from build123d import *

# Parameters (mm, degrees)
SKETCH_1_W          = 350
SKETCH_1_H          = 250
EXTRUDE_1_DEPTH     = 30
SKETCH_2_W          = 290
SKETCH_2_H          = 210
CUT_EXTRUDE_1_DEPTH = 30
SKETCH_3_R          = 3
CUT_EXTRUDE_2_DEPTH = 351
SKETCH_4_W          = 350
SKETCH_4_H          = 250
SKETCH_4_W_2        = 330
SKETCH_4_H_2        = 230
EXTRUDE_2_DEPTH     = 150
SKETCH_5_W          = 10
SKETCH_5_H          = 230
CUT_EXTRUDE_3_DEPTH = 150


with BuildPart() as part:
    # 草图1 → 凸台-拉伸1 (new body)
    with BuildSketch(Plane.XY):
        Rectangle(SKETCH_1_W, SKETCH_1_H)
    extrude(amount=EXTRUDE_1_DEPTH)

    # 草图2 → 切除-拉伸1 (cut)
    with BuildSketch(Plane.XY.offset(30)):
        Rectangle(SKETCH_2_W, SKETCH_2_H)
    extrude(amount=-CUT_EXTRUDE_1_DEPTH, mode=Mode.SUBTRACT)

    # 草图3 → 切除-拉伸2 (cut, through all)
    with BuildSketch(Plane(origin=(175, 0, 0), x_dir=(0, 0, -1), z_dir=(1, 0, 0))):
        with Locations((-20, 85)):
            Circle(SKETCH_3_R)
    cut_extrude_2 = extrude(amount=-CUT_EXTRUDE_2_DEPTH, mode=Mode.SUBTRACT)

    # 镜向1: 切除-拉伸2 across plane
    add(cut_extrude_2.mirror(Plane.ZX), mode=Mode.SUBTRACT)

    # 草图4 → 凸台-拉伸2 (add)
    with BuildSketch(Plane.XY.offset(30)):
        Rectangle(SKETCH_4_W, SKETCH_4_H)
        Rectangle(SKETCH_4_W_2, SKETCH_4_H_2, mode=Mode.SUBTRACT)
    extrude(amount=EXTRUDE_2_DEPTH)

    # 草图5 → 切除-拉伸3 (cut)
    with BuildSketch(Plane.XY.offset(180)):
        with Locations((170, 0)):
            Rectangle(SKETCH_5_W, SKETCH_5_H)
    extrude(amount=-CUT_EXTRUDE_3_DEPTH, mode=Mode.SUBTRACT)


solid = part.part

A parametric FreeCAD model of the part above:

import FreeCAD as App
import Part
import Sketcher
Q = App.Units.Quantity


def add_polygon(sketch, points):
    """Adds a closed chain of lines whose ends are joined by coincident constraints."""
    first, n = sketch.GeometryCount, len(points)
    for a, b in zip(points, points[1:] + points[:1]):
        sketch.addGeometry(Part.LineSegment(App.Vector(*a, 0), App.Vector(*b, 0)), False)
    for i in range(n):
        sketch.addConstraint(Sketcher.Constraint("Coincident", first + i, 2, first + (i + 1) % n, 1))

doc = App.newDocument("Part")
body = doc.addObject("PartDesign::Body", "Body")

# Sketch on XY plane
sketch1 = doc.addObject("Sketcher::SketchObject", "Sketch")
body.addObject(sketch1)
sketch1.AttachmentSupport = (doc.XY_Plane, [""])
sketch1.MapMode = "FlatFace"
add_polygon(sketch1, [(-175, 125), (-175, -125), (175, -125), (175, 125)])  # lines 0-3
sketch1.addConstraint([
    Sketcher.Constraint("Vertical", 0),
    Sketcher.Constraint("Horizontal", 1),
    Sketcher.Constraint("Vertical", 2),
    Sketcher.Constraint("Horizontal", 3),
    Sketcher.Constraint("Symmetric", 0, 2, 2, 2, -1, 1),
    Sketcher.Constraint("DistanceX", 1, 1, 1, 2, Q("350 mm")),
    Sketcher.Constraint("DistanceY", 0, 2, 0, 1, Q("250 mm")),
])
pad1 = doc.addObject("PartDesign::Pad", "Pad")
body.addObject(pad1)
pad1.Profile = sketch1
pad1.Length = 30

# Sketch on XY plane
sketch2 = doc.addObject("Sketcher::SketchObject", "Sketch001")
body.addObject(sketch2)
sketch2.AttachmentSupport = (doc.XY_Plane, [""])
sketch2.MapMode = "FlatFace"
sketch2.AttachmentOffset = App.Placement(App.Vector(0, 0, 30), App.Rotation())
add_polygon(sketch2, [(-145, 105), (-145, -105), (145, -105), (145, 105)])  # lines 0-3
sketch2.addConstraint([
    Sketcher.Constraint("Vertical", 0),
    Sketcher.Constraint("Horizontal", 1),
    Sketcher.Constraint("Vertical", 2),
    Sketcher.Constraint("Horizontal", 3),
    Sketcher.Constraint("Symmetric", 0, 2, 2, 2, -1, 1),
    Sketcher.Constraint("DistanceX", 1, 1, 1, 2, Q("290 mm")),
    Sketcher.Constraint("DistanceY", 0, 2, 0, 1, Q("210 mm")),
])
pocket1 = doc.addObject("PartDesign::Pocket", "Pocket")
body.addObject(pocket1)
pocket1.Profile = sketch2
pocket1.Length = 30

# Sketch on YZ plane
sketch3 = doc.addObject("Sketcher::SketchObject", "Sketch002")
body.addObject(sketch3)
sketch3.AttachmentSupport = (doc.YZ_Plane, [""])
sketch3.MapMode = "FlatFace"
sketch3.AttachmentOffset = App.Placement(App.Vector(0, 0, 175), App.Rotation())
sketch3.addGeometry(Part.Circle(App.Vector(85, 20, 0), App.Vector(0, 0, 1), 3), False)
sketch3.addConstraint([
    Sketcher.Constraint("Diameter", 0, Q("6 mm")),
    Sketcher.Constraint("DistanceX", -1, 1, 0, 3, Q("85 mm")),
    Sketcher.Constraint("DistanceY", -1, 1, 0, 3, Q("20 mm")),
])
pocket2 = doc.addObject("PartDesign::Pocket", "Pocket001")
body.addObject(pocket2)
pocket2.Profile = sketch3
pocket2.Type = "ThroughAll"
doc.recompute()

mirrored = doc.addObject("PartDesign::Mirrored", "Mirrored")
body.addObject(mirrored)
mirrored.Originals = [pocket2]
mirrored.MirrorPlane = (doc.XZ_Plane, [""])
body.Tip = mirrored

# Sketch on XY plane
sketch4 = doc.addObject("Sketcher::SketchObject", "Sketch003")
body.addObject(sketch4)
sketch4.AttachmentSupport = (doc.XY_Plane, [""])
sketch4.MapMode = "FlatFace"
sketch4.AttachmentOffset = App.Placement(App.Vector(0, 0, 30), App.Rotation())
add_polygon(sketch4, [(-175, 125), (-175, -125), (175, -125), (175, 125)])  # lines 0-3
add_polygon(sketch4, [(165, -115), (-165, -115), (-165, 115), (165, 115)])  # lines 4-7
sketch4.addConstraint([
    Sketcher.Constraint("Vertical", 0),
    Sketcher.Constraint("Horizontal", 1),
    Sketcher.Constraint("Vertical", 2),
    Sketcher.Constraint("Horizontal", 3),
    Sketcher.Constraint("Horizontal", 4),
    Sketcher.Constraint("Vertical", 5),
    Sketcher.Constraint("Horizontal", 6),
    Sketcher.Constraint("Vertical", 7),
    Sketcher.Constraint("Symmetric", 0, 2, 2, 2, -1, 1),
    Sketcher.Constraint("Symmetric", 4, 2, 6, 2, -1, 1),
    Sketcher.Constraint("DistanceX", 1, 1, 1, 2, Q("350 mm")),
    Sketcher.Constraint("DistanceX", 4, 2, 4, 1, Q("330 mm")),
    Sketcher.Constraint("DistanceY", 0, 2, 0, 1, Q("250 mm")),
    Sketcher.Constraint("DistanceY", 5, 1, 5, 2, Q("230 mm")),
])
pad2 = doc.addObject("PartDesign::Pad", "Pad001")
body.addObject(pad2)
pad2.Profile = sketch4
pad2.Length = 150

# Sketch on XY plane
sketch5 = doc.addObject("Sketcher::SketchObject", "Sketch004")
body.addObject(sketch5)
sketch5.AttachmentSupport = (doc.XY_Plane, [""])
sketch5.MapMode = "FlatFace"
sketch5.AttachmentOffset = App.Placement(App.Vector(0, 0, 180), App.Rotation())
add_polygon(sketch5, [(165, 115), (165, -115), (175, -115), (175, 115)])  # lines 0-3
sketch5.addConstraint([
    Sketcher.Constraint("Vertical", 0),
    Sketcher.Constraint("Horizontal", 1),
    Sketcher.Constraint("Vertical", 2),
    Sketcher.Constraint("Horizontal", 3),
    Sketcher.Constraint("DistanceX", 1, 1, 1, 2, Q("10 mm")),
    Sketcher.Constraint("DistanceY", 0, 2, 0, 1, Q("230 mm")),
    Sketcher.Constraint("DistanceX", -1, 1, 0, 2, Q("165 mm")),
    Sketcher.Constraint("DistanceY", 0, 2, -1, 1, Q("115 mm")),
])
pocket3 = doc.addObject("PartDesign::Pocket", "Pocket002")
body.addObject(pocket3)
pocket3.Profile = sketch5
pocket3.Length = 150

doc.recompute()
